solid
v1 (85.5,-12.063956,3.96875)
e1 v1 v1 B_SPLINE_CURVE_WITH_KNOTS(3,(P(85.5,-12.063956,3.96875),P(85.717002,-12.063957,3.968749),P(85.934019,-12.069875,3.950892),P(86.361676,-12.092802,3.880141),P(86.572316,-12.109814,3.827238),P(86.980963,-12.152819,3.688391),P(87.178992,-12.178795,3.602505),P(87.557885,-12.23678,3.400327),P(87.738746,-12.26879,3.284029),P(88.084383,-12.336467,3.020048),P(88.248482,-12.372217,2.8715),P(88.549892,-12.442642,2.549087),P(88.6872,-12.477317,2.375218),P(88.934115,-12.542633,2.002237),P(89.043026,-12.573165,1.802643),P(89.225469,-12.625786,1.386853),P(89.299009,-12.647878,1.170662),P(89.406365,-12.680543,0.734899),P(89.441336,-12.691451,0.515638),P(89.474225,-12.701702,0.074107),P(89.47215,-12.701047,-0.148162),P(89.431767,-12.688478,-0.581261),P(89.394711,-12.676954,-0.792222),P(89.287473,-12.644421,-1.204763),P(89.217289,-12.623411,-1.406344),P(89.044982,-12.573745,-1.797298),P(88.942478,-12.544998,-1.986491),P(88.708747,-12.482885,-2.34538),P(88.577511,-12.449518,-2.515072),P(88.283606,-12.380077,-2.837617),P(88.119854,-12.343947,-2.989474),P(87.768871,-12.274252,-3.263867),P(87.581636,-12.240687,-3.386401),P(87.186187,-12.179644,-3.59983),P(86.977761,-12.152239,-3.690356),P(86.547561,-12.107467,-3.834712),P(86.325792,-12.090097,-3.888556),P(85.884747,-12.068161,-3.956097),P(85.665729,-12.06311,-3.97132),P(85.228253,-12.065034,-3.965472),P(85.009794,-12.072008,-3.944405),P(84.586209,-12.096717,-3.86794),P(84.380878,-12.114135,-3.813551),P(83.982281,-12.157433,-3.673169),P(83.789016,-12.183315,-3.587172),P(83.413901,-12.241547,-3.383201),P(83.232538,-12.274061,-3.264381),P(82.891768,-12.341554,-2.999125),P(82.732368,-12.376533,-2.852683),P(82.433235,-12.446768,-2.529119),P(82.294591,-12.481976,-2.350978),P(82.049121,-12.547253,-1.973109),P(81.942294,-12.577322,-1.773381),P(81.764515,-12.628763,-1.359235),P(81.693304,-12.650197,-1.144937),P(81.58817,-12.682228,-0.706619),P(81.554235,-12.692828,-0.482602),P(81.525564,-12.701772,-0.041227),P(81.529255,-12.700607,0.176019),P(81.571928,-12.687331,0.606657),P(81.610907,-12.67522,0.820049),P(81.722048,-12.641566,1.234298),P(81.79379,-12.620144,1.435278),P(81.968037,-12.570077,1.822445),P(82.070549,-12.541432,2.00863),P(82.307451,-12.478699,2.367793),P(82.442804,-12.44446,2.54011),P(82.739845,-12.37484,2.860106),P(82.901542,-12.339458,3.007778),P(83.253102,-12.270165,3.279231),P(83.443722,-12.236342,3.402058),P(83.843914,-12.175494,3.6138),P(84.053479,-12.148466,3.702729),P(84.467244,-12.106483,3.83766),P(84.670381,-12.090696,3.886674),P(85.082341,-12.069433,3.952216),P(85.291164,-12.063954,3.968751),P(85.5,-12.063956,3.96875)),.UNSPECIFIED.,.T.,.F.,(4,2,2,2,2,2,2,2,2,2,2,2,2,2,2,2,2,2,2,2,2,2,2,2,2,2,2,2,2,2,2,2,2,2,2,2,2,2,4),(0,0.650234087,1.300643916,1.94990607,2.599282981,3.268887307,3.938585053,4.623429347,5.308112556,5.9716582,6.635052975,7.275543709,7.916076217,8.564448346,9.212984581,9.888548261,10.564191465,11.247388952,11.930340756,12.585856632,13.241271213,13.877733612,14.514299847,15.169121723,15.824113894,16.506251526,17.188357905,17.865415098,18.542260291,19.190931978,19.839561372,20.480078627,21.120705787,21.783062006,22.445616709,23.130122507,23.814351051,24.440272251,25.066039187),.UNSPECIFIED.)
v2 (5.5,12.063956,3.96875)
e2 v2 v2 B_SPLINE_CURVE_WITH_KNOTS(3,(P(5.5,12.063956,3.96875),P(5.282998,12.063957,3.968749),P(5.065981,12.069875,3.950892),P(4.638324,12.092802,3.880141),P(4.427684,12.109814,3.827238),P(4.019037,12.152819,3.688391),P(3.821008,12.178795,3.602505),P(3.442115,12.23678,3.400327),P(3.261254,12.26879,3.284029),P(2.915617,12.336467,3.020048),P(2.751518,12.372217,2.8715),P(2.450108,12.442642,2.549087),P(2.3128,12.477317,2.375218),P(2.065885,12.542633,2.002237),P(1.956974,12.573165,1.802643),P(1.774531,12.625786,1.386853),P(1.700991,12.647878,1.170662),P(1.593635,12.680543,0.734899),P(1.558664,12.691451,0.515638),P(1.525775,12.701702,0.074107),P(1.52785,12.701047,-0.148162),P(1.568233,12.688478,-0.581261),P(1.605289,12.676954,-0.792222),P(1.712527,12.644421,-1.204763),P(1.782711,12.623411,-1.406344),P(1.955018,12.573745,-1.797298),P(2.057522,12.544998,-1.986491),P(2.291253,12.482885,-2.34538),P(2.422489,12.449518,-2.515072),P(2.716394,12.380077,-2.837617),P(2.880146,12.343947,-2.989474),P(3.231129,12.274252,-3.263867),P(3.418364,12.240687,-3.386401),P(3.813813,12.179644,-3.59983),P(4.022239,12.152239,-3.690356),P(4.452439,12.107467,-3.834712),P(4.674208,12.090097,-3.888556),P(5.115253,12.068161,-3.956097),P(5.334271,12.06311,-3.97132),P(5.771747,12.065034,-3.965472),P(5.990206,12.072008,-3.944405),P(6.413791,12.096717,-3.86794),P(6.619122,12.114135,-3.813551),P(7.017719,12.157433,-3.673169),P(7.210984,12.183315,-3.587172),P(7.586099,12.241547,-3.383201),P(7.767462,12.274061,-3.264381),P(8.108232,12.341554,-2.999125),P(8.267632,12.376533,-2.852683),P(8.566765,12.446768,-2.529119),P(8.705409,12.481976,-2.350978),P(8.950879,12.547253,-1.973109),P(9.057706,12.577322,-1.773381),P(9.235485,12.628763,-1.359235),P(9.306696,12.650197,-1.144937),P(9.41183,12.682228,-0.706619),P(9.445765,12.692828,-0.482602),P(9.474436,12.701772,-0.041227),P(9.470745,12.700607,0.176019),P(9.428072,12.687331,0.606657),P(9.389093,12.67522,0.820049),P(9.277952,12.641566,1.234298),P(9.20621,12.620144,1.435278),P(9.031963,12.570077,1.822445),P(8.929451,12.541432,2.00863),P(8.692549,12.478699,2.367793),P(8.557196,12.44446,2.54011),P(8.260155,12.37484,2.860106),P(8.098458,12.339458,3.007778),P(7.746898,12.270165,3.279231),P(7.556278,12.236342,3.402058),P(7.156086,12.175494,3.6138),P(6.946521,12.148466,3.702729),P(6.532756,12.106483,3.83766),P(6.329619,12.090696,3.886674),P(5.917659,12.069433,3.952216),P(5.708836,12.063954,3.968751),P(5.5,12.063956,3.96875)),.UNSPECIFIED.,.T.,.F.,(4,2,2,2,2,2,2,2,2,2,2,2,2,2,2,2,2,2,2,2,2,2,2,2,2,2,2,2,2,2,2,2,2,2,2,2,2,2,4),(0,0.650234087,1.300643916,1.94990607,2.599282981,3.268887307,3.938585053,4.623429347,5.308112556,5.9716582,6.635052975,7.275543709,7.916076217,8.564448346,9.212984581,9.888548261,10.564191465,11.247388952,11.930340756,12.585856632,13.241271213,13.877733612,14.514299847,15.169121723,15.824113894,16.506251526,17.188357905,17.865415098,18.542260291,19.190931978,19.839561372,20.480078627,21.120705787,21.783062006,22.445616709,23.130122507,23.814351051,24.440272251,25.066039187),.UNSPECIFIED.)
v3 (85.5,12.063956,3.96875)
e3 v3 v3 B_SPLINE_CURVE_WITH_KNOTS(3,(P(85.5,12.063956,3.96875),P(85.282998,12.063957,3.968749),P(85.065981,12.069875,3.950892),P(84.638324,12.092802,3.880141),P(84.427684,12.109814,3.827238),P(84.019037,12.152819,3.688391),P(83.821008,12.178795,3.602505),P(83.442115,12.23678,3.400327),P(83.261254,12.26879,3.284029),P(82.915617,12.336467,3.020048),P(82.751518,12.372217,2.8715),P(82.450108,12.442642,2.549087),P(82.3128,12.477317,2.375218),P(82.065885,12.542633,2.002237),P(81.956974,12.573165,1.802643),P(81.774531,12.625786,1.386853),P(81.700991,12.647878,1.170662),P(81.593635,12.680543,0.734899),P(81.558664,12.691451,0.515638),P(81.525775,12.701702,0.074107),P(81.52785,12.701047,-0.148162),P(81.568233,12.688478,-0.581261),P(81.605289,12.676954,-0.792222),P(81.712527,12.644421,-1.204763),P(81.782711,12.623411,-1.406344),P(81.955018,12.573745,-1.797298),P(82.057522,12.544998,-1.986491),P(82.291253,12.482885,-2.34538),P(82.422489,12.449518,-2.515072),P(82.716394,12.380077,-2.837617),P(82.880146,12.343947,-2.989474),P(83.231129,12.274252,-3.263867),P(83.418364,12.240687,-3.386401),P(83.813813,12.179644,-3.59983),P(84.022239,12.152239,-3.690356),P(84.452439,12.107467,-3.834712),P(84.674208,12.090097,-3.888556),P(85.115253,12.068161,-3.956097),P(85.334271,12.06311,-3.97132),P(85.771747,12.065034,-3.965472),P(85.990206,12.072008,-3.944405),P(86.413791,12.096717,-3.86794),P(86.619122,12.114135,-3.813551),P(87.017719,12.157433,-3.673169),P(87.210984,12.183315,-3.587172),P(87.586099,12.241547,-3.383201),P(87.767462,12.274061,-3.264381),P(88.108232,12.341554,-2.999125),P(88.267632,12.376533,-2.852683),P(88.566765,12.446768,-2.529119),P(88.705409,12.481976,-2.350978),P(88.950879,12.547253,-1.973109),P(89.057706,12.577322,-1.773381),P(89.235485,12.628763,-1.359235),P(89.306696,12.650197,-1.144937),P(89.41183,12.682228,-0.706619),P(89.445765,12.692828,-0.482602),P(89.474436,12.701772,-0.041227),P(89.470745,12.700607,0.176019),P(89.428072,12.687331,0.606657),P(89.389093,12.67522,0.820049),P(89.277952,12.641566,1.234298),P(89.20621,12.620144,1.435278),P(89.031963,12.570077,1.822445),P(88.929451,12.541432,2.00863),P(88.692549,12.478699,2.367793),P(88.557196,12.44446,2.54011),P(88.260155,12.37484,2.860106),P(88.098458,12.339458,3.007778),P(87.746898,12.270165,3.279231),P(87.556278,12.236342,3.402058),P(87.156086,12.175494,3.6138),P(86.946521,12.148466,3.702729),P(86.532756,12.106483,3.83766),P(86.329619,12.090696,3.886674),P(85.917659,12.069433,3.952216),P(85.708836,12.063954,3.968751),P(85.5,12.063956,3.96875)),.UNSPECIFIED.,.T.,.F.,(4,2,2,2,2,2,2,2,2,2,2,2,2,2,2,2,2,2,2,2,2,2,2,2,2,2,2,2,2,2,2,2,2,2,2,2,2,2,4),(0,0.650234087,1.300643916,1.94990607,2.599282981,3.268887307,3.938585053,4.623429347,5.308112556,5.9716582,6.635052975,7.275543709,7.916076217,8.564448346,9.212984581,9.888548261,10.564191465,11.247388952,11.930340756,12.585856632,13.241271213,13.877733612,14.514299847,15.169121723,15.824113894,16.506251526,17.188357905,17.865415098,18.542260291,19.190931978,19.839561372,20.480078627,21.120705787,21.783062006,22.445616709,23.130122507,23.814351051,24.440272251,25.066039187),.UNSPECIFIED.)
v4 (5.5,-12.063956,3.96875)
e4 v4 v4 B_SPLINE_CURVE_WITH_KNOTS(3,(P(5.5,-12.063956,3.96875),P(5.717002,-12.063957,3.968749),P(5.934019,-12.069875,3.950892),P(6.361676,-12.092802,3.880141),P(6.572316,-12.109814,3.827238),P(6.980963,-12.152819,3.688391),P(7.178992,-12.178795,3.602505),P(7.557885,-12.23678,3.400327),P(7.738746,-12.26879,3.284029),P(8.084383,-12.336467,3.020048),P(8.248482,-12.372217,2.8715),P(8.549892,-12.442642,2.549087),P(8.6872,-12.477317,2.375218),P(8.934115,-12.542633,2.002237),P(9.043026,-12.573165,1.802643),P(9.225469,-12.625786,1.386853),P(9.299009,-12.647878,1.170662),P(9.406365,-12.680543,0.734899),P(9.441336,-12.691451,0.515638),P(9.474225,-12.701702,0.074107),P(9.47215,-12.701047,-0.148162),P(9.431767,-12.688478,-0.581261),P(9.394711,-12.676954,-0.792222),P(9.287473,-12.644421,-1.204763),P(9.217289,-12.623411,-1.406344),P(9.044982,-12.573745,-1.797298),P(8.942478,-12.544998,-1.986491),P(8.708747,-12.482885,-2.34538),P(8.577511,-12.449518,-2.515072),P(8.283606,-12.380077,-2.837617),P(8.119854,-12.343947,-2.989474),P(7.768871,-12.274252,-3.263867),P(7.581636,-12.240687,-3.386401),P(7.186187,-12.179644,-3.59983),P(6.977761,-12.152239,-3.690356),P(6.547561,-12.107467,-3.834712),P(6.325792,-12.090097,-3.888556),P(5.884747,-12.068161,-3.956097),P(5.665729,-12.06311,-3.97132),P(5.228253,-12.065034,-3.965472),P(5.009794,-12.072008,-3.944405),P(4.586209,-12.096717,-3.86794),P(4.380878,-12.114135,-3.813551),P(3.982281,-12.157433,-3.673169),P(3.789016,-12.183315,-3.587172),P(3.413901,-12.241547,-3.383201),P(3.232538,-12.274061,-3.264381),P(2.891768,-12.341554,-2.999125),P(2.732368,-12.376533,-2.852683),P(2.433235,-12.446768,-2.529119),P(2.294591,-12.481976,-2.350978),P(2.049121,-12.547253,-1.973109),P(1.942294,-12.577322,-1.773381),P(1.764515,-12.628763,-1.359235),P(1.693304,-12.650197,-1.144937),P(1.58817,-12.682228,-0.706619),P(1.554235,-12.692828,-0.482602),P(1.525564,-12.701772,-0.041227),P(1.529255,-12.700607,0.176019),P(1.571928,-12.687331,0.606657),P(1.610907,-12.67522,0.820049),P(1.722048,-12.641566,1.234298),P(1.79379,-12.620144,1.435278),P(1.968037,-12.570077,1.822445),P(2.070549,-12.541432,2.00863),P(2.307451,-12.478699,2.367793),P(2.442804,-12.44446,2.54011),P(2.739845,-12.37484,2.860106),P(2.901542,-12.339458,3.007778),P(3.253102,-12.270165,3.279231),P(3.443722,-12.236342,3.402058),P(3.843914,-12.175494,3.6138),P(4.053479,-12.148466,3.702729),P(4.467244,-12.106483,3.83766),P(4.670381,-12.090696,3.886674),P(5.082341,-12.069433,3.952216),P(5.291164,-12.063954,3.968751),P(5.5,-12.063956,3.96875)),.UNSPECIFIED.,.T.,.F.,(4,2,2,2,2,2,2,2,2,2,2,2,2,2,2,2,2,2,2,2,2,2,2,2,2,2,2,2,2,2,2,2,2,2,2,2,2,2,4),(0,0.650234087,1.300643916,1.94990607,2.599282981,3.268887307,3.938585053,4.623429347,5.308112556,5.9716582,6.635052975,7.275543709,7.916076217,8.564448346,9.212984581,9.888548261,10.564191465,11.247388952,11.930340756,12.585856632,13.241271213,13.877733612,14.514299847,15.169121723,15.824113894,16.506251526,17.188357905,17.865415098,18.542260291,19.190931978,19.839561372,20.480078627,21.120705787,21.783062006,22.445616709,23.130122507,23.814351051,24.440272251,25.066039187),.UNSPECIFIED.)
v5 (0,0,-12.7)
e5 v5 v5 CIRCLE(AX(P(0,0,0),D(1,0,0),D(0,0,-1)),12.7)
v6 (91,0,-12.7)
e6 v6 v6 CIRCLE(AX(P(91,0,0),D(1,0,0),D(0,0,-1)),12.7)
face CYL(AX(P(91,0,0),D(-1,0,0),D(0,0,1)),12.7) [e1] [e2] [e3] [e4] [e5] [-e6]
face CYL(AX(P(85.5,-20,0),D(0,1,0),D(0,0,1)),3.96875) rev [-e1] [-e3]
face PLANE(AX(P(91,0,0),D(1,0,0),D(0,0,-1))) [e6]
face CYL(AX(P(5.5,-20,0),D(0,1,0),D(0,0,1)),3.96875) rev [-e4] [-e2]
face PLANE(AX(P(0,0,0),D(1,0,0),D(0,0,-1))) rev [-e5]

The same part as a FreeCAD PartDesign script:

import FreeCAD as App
import Part
import Sketcher

V = App.Vector

doc = App.newDocument("Part")
body = doc.addObject("PartDesign::Body", "Body")

sketch1 = doc.addObject("Sketcher::SketchObject", "Sketch")
body.addObject(sketch1)
sketch1.AttachmentSupport = (doc.YZ_Plane, [""])
sketch1.MapMode = "FlatFace"
sketch1.addGeometry(Part.Circle(V(0, 0, 0), V(0, 0, 1), 13), False)
sketch1.addConstraint(Sketcher.Constraint("Coincident", 0, 3, -1, 1))
sketch1.addConstraint(Sketcher.Constraint("Diameter", 0, 25.4))
pad1 = doc.addObject("PartDesign::Pad", "Pad")
body.addObject(pad1)
pad1.Profile = sketch1
pad1.Length = 91

sketch2 = doc.addObject("Sketcher::SketchObject", "Sketch001")
body.addObject(sketch2)
sketch2.AttachmentSupport = (doc.XZ_Plane, [""])
sketch2.MapMode = "FlatFace"
sketch2.addGeometry(Part.Circle(V(5.5, 0, 0), V(0, 0, 1), 4), False)
sketch2.addGeometry(Part.Circle(V(85.5, 0, 0), V(0, 0, 1), 4), False)
sketch2.addConstraint(Sketcher.Constraint("Equal", 0, 1))
sketch2.addConstraint(Sketcher.Constraint("PointOnObject", 0, 3, -1))
sketch2.addConstraint(Sketcher.Constraint("PointOnObject", 1, 3, -1))
sketch2.addConstraint(Sketcher.Constraint("DistanceX", 0, 3, 1, 3, 80.0))
sketch2.addConstraint(Sketcher.Constraint("Diameter", 0, 7.9375))
sketch2.addConstraint(Sketcher.Constraint("DistanceX", -1, 1, 0, 3, 5.5))
pocket1 = doc.addObject("PartDesign::Pocket", "Pocket")
body.addObject(pocket1)
pocket1.Profile = sketch2
pocket1.Length = 40
pocket1.Midplane = True

doc.recompute()
